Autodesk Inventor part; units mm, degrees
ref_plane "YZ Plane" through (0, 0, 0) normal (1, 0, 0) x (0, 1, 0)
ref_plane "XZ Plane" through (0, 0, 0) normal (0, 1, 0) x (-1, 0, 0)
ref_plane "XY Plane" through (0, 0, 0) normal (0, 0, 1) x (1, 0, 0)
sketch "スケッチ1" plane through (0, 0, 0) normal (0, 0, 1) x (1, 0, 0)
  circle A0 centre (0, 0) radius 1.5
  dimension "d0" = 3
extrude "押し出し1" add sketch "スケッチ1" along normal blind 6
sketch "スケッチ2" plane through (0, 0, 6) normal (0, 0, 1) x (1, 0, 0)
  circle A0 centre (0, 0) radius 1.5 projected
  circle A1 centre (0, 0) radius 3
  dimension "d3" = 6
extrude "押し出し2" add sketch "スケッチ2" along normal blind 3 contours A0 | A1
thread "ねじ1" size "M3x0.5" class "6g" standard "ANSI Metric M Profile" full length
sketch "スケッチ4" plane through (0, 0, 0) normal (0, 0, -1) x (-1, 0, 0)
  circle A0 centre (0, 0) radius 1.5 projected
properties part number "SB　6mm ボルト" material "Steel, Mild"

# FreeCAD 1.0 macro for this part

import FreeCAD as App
import Part
import Sketcher
from FreeCAD import Vector

doc = App.newDocument("Part")
body = doc.addObject("PartDesign::Body", "Body")

# Sketch on XY plane
sketch1 = body.newObject("Sketcher::SketchObject", "Sketch")
sketch1.AttachmentSupport = (doc.getObject("XY_Plane"), [""])
sketch1.MapMode = "FlatFace"
sketch1.addGeometry(Part.Circle(Vector(0, 0, 0), Vector(0, 0, 1), 1.5), False)
sketch1.addConstraint([
    Sketcher.Constraint("Coincident", 0, 3, -1, 1),
    Sketcher.Constraint("Diameter", 0, 3.0),
])
pad1 = body.newObject("PartDesign::Pad", "Pad")
pad1.Profile = sketch1
pad1.Length = 6

# Sketch on XY plane
sketch2 = body.newObject("Sketcher::SketchObject", "Sketch001")
sketch2.AttachmentSupport = (doc.getObject("XY_Plane"), [""])
sketch2.MapMode = "FlatFace"
sketch2.AttachmentOffset = App.Placement(Vector(0, 0, 6), App.Rotation())
sketch2.addGeometry(Part.Circle(Vector(0, 0, 0), Vector(0, 0, 1), 3), False)
sketch2.addConstraint([
    Sketcher.Constraint("Coincident", 0, 3, -1, 1),
    Sketcher.Constraint("Diameter", 0, 6.0),
])
pad2 = body.newObject("PartDesign::Pad", "Pad001")
pad2.Profile = sketch2
pad2.Length = 3

doc.recompute()
